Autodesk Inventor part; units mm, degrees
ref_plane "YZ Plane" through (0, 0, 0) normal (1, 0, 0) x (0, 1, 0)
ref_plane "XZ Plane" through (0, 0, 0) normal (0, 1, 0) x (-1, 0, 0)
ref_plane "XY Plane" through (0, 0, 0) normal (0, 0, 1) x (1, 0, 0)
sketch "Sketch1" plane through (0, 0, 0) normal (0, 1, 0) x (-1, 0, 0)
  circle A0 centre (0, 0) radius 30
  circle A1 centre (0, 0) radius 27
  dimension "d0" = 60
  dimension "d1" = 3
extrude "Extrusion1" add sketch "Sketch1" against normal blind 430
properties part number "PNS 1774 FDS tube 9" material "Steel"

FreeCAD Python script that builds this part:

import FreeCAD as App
import Part
import Sketcher
Q = App.Units.Quantity

doc = App.newDocument("Part")
body = doc.addObject("PartDesign::Body", "Body")

# Sketch on XZ plane
sketch1 = body.newObject("Sketcher::SketchObject", "Sketch")
sketch1.AttachmentSupport = (doc.getObject("XZ_Plane"), [""])
sketch1.MapMode = "FlatFace"
sketch1.addGeometry([
    Part.Circle(App.Vector(0, 0, 0), App.Vector(0, 0, 1), 30),
    Part.Circle(App.Vector(0, 0, 0), App.Vector(0, 0, 1), 27),
], False)
sketch1.addConstraint([
    Sketcher.Constraint("Coincident", 0, 3, -1, 1),
    Sketcher.Constraint("Coincident", 1, 3, -1, 1),
    Sketcher.Constraint("Diameter", 0, Q("60 mm")),
    Sketcher.Constraint("Diameter", 1, Q("54 mm")),
])
pad1 = body.newObject("PartDesign::Pad", "Pad")
pad1.Profile = sketch1
pad1.Length = 430

doc.recompute()
